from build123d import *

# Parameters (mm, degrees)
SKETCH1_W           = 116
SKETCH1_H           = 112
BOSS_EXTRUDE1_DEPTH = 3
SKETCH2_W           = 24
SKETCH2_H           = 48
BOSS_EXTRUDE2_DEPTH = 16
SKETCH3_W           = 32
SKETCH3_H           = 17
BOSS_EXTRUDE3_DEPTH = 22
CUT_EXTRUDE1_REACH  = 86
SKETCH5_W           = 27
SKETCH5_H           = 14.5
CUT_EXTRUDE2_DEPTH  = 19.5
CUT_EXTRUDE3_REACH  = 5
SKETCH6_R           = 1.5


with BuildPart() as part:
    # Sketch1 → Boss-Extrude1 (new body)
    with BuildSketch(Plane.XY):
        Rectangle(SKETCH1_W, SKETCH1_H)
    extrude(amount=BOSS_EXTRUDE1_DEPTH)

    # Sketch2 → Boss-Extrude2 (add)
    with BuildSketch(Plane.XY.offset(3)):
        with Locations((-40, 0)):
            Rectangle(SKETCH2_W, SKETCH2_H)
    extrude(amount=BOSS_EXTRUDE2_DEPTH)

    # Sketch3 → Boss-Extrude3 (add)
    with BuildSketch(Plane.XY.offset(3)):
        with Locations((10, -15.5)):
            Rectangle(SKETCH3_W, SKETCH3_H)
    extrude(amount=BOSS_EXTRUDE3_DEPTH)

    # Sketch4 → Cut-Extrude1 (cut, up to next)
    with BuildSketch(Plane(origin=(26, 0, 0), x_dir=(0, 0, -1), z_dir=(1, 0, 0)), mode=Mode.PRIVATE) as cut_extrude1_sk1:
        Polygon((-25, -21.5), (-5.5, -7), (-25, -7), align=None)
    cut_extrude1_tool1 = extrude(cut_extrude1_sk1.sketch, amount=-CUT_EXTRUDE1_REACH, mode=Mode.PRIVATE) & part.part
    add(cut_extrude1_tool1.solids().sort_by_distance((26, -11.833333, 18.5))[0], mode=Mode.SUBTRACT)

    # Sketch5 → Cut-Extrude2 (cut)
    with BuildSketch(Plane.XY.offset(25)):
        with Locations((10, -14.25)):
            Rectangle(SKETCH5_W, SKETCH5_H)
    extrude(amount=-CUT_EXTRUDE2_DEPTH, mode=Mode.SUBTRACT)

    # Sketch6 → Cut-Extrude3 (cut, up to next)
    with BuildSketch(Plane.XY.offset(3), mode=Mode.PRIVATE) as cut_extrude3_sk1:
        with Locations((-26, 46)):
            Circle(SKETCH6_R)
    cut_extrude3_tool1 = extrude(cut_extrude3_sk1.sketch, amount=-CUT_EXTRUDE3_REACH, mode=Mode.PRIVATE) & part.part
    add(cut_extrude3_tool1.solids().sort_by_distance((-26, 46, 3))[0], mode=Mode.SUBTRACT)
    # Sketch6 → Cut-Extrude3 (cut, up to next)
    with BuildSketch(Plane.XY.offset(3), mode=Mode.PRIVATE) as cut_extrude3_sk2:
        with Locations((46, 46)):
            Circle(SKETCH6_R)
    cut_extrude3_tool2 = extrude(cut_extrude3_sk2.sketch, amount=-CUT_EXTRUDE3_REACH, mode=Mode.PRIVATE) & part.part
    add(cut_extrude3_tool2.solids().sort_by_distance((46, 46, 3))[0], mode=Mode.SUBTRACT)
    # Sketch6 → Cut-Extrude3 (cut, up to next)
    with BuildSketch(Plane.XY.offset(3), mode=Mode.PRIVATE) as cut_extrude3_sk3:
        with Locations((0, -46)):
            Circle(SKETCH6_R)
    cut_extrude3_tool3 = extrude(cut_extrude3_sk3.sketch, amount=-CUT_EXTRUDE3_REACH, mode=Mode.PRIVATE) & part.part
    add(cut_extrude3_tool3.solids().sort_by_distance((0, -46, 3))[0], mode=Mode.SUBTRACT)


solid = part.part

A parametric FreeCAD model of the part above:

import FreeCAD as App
import Part
import Sketcher

V = App.Vector
Q = App.Units.Quantity


def add_polygon(sketch, points):
    """Adds a closed chain of lines whose ends are joined by coincident constraints."""
    first, n = sketch.GeometryCount, len(points)
    for a, b in zip(points, points[1:] + points[:1]):
        sketch.addGeometry(Part.LineSegment(App.Vector(*a, 0), App.Vector(*b, 0)), False)
    for i in range(n):
        sketch.addConstraint(Sketcher.Constraint("Coincident", first + i, 2, first + (i + 1) % n, 1))

doc = App.newDocument("Part")
params = doc.addObject("Spreadsheet::Sheet", "Params")
for row, (alias, value) in enumerate([
    ("sketch1_width", "116 mm"),
    ("sketch1_height", "112 mm"),
    ("pad1_length", "3 mm"),
    ("sketch2_width", "24 mm"),
    ("sketch2_height", "48 mm"),
    ("pad2_length", "16 mm"),
    ("sketch3_width", "32 mm"),
    ("sketch3_height", "17 mm"),
    ("pad3_length", "22 mm"),
    ("sketch4_width", "14.5 mm"),
    ("sketch4_height", "19.5 mm"),
    ("sketch5_width", "27 mm"),
    ("sketch5_height", "14.5 mm"),
    ("pocket2_length", "19.5 mm"),
    ("sketch6_diameter", "3 mm"),
    ("sketch7_diameter", "3 mm"),
    ("sketch8_diameter", "3 mm"),
], start=1):
    params.set(f"A{row}", alias)
    params.set(f"B{row}", "=" + value)
    params.setAlias(f"B{row}", alias)

body = doc.addObject("PartDesign::Body", "Body")

# Sketch on XY plane
sketch1 = body.newObject("Sketcher::SketchObject", "Sketch")
sketch1.AttachmentSupport = (doc.getObject("XY_Plane"), [""])
sketch1.MapMode = "FlatFace"
add_polygon(sketch1, [(-58, 56), (-58, -56), (58, -56), (58, 56)])  # lines 0-3
sketch1.addConstraint([
    Sketcher.Constraint("Vertical", 0),
    Sketcher.Constraint("Horizontal", 1),
    Sketcher.Constraint("Vertical", 2),
    Sketcher.Constraint("Horizontal", 3),
    Sketcher.Constraint("Symmetric", 0, 2, 2, 2, -1, 1),
    Sketcher.Constraint("DistanceX", 1, 1, 1, 2, Q("116 mm")),
    Sketcher.Constraint("DistanceY", 0, 2, 0, 1, Q("112 mm")),
])
sketch1.setExpression("Constraints[9]", "Params.sketch1_width")
sketch1.setExpression("Constraints[10]", "Params.sketch1_height")
pad1 = body.newObject("PartDesign::Pad", "Pad")
pad1.Profile = sketch1
pad1.setExpression("Length", "Params.pad1_length")

# Sketch on XY plane
sketch2 = body.newObject("Sketcher::SketchObject", "Sketch001")
sketch2.AttachmentSupport = (doc.getObject("XY_Plane"), [""])
sketch2.MapMode = "FlatFace"
sketch2.AttachmentOffset = App.Placement(V(0, 0, 3), App.Rotation())
add_polygon(sketch2, [(-52, 24), (-52, -24), (-28, -24), (-28, 24)])  # lines 0-3
sketch2.addConstraint([
    Sketcher.Constraint("Vertical", 0),
    Sketcher.Constraint("Horizontal", 1),
    Sketcher.Constraint("Vertical", 2),
    Sketcher.Constraint("Horizontal", 3),
    Sketcher.Constraint("DistanceX", 1, 1, 1, 2, Q("24 mm")),
    Sketcher.Constraint("DistanceY", 0, 2, 0, 1, Q("48 mm")),
    Sketcher.Constraint("DistanceX", 0, 2, -1, 1, Q("52 mm")),
    Sketcher.Constraint("DistanceY", 0, 2, -1, 1, Q("24 mm")),
])
sketch2.setExpression("Constraints[8]", "Params.sketch2_width")
sketch2.setExpression("Constraints[9]", "Params.sketch2_height")
pad2 = body.newObject("PartDesign::Pad", "Pad001")
pad2.Profile = sketch2
pad2.setExpression("Length", "Params.pad2_length")

# Sketch on XY plane
sketch3 = body.newObject("Sketcher::SketchObject", "Sketch002")
sketch3.AttachmentSupport = (doc.getObject("XY_Plane"), [""])
sketch3.MapMode = "FlatFace"
sketch3.AttachmentOffset = App.Placement(V(0, 0, 3), App.Rotation())
add_polygon(sketch3, [(-6, -7), (-6, -24), (26, -24), (26, -7)])  # lines 0-3
sketch3.addConstraint([
    Sketcher.Constraint("Vertical", 0),
    Sketcher.Constraint("Horizontal", 1),
    Sketcher.Constraint("Vertical", 2),
    Sketcher.Constraint("Horizontal", 3),
    Sketcher.Constraint("DistanceX", 1, 1, 1, 2, Q("32 mm")),
    Sketcher.Constraint("DistanceY", 0, 2, 0, 1, Q("17 mm")),
    Sketcher.Constraint("DistanceX", 0, 2, -1, 1, Q("6 mm")),
    Sketcher.Constraint("DistanceY", 0, 2, -1, 1, Q("24 mm")),
])
sketch3.setExpression("Constraints[8]", "Params.sketch3_width")
sketch3.setExpression("Constraints[9]", "Params.sketch3_height")
pad3 = body.newObject("PartDesign::Pad", "Pad002")
pad3.Profile = sketch3
pad3.setExpression("Length", "Params.pad3_length")

# Sketch on YZ plane
sketch4 = body.newObject("Sketcher::SketchObject", "Sketch003")
sketch4.AttachmentSupport = (doc.getObject("YZ_Plane"), [""])
sketch4.MapMode = "FlatFace"
sketch4.AttachmentOffset = App.Placement(V(0, 0, 26), App.Rotation())
add_polygon(sketch4, [(-22, 25), (-7, 6), (-7, 25)])  # lines 0-2
sketch4.addConstraint([
    Sketcher.Constraint("Vertical", 1),
    Sketcher.Constraint("Horizontal", 2),
    Sketcher.Constraint("DistanceX", 2, 2, 2, 1, Q("14.5 mm")),
    Sketcher.Constraint("DistanceY", 1, 1, 1, 2, Q("19.5 mm")),
    Sketcher.Constraint("DistanceX", 0, 2, -1, 1, Q("7 mm")),
    Sketcher.Constraint("DistanceY", -1, 1, 1, 2, Q("25 mm")),
])
sketch4.setExpression("Constraints[5]", "Params.sketch4_width")
sketch4.setExpression("Constraints[6]", "Params.sketch4_height")
pocket1 = body.newObject("PartDesign::Pocket", "Pocket")
pocket1.Profile = sketch4
pocket1.Type = "UpToFirst"

# Sketch on XY plane
sketch5 = body.newObject("Sketcher::SketchObject", "Sketch004")
sketch5.AttachmentSupport = (doc.getObject("XY_Plane"), [""])
sketch5.MapMode = "FlatFace"
sketch5.AttachmentOffset = App.Placement(V(0, 0, 25), App.Rotation())
add_polygon(sketch5, [(-4, -7), (-4, -22), (24, -22), (24, -7)])  # lines 0-3
sketch5.addConstraint([
    Sketcher.Constraint("Vertical", 0),
    Sketcher.Constraint("Horizontal", 1),
    Sketcher.Constraint("Vertical", 2),
    Sketcher.Constraint("Horizontal", 3),
    Sketcher.Constraint("DistanceX", 1, 1, 1, 2, Q("27 mm")),
    Sketcher.Constraint("DistanceY", 0, 2, 0, 1, Q("14.5 mm")),
    Sketcher.Constraint("DistanceY", 2, 2, -1, 1, Q("7 mm")),
    Sketcher.Constraint("DistanceX", 0, 2, -1, 1, Q("3.5 mm")),
])
sketch5.setExpression("Constraints[8]", "Params.sketch5_width")
sketch5.setExpression("Constraints[9]", "Params.sketch5_height")
pocket2 = body.newObject("PartDesign::Pocket", "Pocket001")
pocket2.Profile = sketch5
pocket2.setExpression("Length", "Params.pocket2_length")

# Sketch on XY plane
sketch6 = body.newObject("Sketcher::SketchObject", "Sketch005")
sketch6.AttachmentSupport = (doc.getObject("XY_Plane"), [""])
sketch6.MapMode = "FlatFace"
sketch6.AttachmentOffset = App.Placement(V(0, 0, 3), App.Rotation())
sketch6.addGeometry(Part.Circle(V(-26, 46, 0), V(0, 0, 1), 1.5), False)
sketch6.addConstraint([
    Sketcher.Constraint("Diameter", 0, Q("3 mm")),
    Sketcher.Constraint("DistanceX", 0, 3, -1, 1, Q("26 mm")),
    Sketcher.Constraint("DistanceY", -1, 1, 0, 3, Q("46 mm")),
])
sketch6.setExpression("Constraints[0]", "Params.sketch6_diameter")
pocket3 = body.newObject("PartDesign::Pocket", "Pocket002")
pocket3.Profile = sketch6
pocket3.Type = "UpToFirst"

# Sketch on XY plane
sketch7 = body.newObject("Sketcher::SketchObject", "Sketch006")
sketch7.AttachmentSupport = (doc.getObject("XY_Plane"), [""])
sketch7.MapMode = "FlatFace"
sketch7.AttachmentOffset = App.Placement(V(0, 0, 3), App.Rotation())
sketch7.addGeometry(Part.Circle(V(46, 46, 0), V(0, 0, 1), 1.5), False)
sketch7.addConstraint([
    Sketcher.Constraint("Diameter", 0, Q("3 mm")),
    Sketcher.Constraint("DistanceX", -1, 1, 0, 3, Q("46 mm")),
    Sketcher.Constraint("DistanceY", -1, 1, 0, 3, Q("46 mm")),
])
sketch7.setExpression("Constraints[0]", "Params.sketch7_diameter")
pocket4 = body.newObject("PartDesign::Pocket", "Pocket003")
pocket4.Profile = sketch7
pocket4.Type = "UpToFirst"

# Sketch on XY plane
sketch8 = body.newObject("Sketcher::SketchObject", "Sketch007")
sketch8.AttachmentSupport = (doc.getObject("XY_Plane"), [""])
sketch8.MapMode = "FlatFace"
sketch8.AttachmentOffset = App.Placement(V(0, 0, 3), App.Rotation())
sketch8.addGeometry(Part.Circle(V(0, -46, 0), V(0, 0, 1), 1.5), False)
sketch8.addConstraint([
    Sketcher.Constraint("PointOnObject", 0, 3, -2),
    Sketcher.Constraint("Diameter", 0, Q("3 mm")),
    Sketcher.Constraint("DistanceY", 0, 3, -1, 1, Q("46 mm")),
])
sketch8.setExpression("Constraints[1]", "Params.sketch8_diameter")
pocket5 = body.newObject("PartDesign::Pocket", "Pocket004")
pocket5.Profile = sketch8
pocket5.Type = "UpToFirst"

doc.recompute()
